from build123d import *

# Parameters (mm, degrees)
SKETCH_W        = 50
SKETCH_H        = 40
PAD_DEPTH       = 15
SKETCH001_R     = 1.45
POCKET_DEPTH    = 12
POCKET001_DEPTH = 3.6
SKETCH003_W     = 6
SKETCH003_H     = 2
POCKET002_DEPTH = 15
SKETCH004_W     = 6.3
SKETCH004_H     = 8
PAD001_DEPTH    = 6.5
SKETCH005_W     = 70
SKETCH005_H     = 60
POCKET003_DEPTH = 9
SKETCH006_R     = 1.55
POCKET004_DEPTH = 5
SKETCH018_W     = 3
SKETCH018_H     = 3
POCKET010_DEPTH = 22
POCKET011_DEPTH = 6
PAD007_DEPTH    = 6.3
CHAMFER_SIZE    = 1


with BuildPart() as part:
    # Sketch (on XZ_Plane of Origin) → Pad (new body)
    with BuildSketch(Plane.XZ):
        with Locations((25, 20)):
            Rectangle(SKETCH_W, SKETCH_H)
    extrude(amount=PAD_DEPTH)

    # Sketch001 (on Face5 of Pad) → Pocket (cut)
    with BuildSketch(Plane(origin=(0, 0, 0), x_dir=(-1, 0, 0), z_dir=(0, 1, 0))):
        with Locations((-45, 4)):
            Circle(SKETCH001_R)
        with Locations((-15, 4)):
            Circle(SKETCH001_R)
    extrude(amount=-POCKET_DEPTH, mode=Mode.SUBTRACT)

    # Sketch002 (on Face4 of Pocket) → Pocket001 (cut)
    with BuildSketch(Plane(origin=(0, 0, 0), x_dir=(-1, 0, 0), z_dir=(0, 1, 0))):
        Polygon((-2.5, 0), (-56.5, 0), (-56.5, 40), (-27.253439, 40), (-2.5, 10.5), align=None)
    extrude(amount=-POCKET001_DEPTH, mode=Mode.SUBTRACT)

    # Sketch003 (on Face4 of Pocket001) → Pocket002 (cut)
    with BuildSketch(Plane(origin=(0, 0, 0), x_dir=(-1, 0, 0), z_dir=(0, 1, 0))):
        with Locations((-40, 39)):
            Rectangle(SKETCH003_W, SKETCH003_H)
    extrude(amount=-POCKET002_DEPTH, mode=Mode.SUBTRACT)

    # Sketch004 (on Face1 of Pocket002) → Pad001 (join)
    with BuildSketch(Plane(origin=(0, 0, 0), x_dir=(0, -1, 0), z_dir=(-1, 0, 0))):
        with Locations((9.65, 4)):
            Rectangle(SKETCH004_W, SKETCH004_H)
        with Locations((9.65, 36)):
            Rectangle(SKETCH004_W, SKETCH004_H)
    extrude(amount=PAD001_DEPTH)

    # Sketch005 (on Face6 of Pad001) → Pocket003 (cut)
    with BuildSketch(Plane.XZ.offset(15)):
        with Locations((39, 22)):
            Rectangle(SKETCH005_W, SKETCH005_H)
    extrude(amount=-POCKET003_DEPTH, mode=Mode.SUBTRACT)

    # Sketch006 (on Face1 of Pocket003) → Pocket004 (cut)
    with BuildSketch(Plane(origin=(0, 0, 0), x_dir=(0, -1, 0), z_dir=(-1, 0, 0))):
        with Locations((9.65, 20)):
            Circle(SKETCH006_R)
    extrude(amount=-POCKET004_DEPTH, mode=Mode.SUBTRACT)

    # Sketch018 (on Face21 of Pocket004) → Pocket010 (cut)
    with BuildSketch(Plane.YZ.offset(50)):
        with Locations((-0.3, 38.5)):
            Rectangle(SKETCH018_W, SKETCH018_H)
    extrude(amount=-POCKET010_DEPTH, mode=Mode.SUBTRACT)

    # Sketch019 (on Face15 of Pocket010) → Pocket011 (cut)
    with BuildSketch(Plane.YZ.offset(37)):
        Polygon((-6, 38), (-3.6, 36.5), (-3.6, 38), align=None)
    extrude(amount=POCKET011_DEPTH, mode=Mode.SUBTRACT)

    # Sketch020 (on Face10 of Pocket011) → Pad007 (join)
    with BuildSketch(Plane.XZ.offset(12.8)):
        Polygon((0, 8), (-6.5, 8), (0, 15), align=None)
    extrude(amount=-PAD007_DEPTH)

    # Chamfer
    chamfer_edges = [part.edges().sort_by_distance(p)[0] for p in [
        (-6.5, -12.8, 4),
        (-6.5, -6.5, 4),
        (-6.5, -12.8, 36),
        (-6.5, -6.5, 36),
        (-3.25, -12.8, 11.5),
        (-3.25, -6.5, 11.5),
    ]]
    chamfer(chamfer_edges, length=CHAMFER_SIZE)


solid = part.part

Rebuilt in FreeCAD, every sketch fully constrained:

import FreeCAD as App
import Part
import Sketcher

V = App.Vector
Q = App.Units.Quantity


def edges_at(feature, points):
    """Names of the edges that pass closest to the given points."""
    edges = feature.Shape.Edges
    near = lambda p: min(range(len(edges)), key=lambda i: edges[i].distToShape(Part.Vertex(*p))[0])
    return sorted({f"Edge{near(p) + 1}" for p in points})


def add_polygon(sketch, points):
    """Adds a closed chain of lines whose ends are joined by coincident constraints."""
    first, n = sketch.GeometryCount, len(points)
    for a, b in zip(points, points[1:] + points[:1]):
        sketch.addGeometry(Part.LineSegment(App.Vector(*a, 0), App.Vector(*b, 0)), False)
    for i in range(n):
        sketch.addConstraint(Sketcher.Constraint("Coincident", first + i, 2, first + (i + 1) % n, 1))

doc = App.newDocument("Part")
body = doc.addObject("PartDesign::Body", "Body")

# Sketch on XZ plane
sketch1 = doc.addObject("Sketcher::SketchObject", "Sketch")
body.addObject(sketch1)
sketch1.AttachmentSupport = (doc.XZ_Plane, [""])
sketch1.MapMode = "FlatFace"
add_polygon(sketch1, [(0, 40), (0, 0), (50, 0), (50, 40)])  # lines 0-3
sketch1.addConstraint([
    Sketcher.Constraint("Vertical", 0),
    Sketcher.Constraint("Horizontal", 1),
    Sketcher.Constraint("Vertical", 2),
    Sketcher.Constraint("Horizontal", 3),
    Sketcher.Constraint("Coincident", 0, 2, -1, 1),
    Sketcher.Constraint("DistanceX", 1, 1, 1, 2, 50.0),
    Sketcher.Constraint("DistanceY", 0, 2, 0, 1, 40.0),
])
pad1 = doc.addObject("PartDesign::Pad", "Pad")
body.addObject(pad1)
pad1.Profile = sketch1
pad1.Length = 15

# Sketch on XZ plane
sketch2 = doc.addObject("Sketcher::SketchObject", "Sketch001")
body.addObject(sketch2)
sketch2.AttachmentSupport = (doc.XZ_Plane, [""])
sketch2.MapMode = "FlatFace"
sketch2.addGeometry([
    Part.Circle(V(45, 4, 0), V(0, 0, 1), 1.45),
    Part.Circle(V(15, 4, 0), V(0, 0, 1), 1.45),
], False)
sketch2.addConstraint([
    Sketcher.Constraint("Equal", 0, 1),
    Sketcher.Constraint("Horizontal", 0, 3, 1, 3),
    Sketcher.Constraint("Diameter", 0, 2.9),
    Sketcher.Constraint("DistanceX", -1, 1, 0, 3, 45.0),
    Sketcher.Constraint("DistanceY", -1, 1, 0, 3, 4.0),
    Sketcher.Constraint("DistanceX", -1, 1, 1, 3, 15.0),
])
pocket1 = doc.addObject("PartDesign::Pocket", "Pocket")
body.addObject(pocket1)
pocket1.Profile = sketch2
pocket1.Length = 12
pocket1.Reversed = True

# Sketch on XZ plane
sketch3 = doc.addObject("Sketcher::SketchObject", "Sketch002")
body.addObject(sketch3)
sketch3.AttachmentSupport = (doc.XZ_Plane, [""])
sketch3.MapMode = "FlatFace"
add_polygon(sketch3, [(56.5, 0), (2.5, 0), (2.5, 10.5), (27.253439, 40), (56.5, 40)])  # lines 0-4
sketch3.addConstraint([
    Sketcher.Constraint("Horizontal", 0),
    Sketcher.Constraint("Vertical", 1),
    Sketcher.Constraint("Horizontal", 3),
    Sketcher.Constraint("Vertical", 4),
    Sketcher.Constraint("PointOnObject", 0, 2, -1),
    Sketcher.Constraint("DistanceX", 0, 2, 0, 1, 54.0),
    Sketcher.Constraint("DistanceY", 4, 2, 4, 1, 40.0),
    Sketcher.Constraint("Angle", 2, Q("50 deg")),
    Sketcher.Constraint("DistanceY", 1, 1, 1, 2, 10.5),
    Sketcher.Constraint("DistanceX", -1, 1, 0, 2, 2.5),
])
pocket2 = doc.addObject("PartDesign::Pocket", "Pocket001")
body.addObject(pocket2)
pocket2.Profile = sketch3
pocket2.Length = 3.6
pocket2.Reversed = True

# Sketch on XZ plane
sketch4 = doc.addObject("Sketcher::SketchObject", "Sketch003")
body.addObject(sketch4)
sketch4.AttachmentSupport = (doc.XZ_Plane, [""])
sketch4.MapMode = "FlatFace"
add_polygon(sketch4, [(43, 40), (43, 38), (37, 38), (37, 40)])  # lines 0-3
sketch4.addConstraint([
    Sketcher.Constraint("Vertical", 0),
    Sketcher.Constraint("Horizontal", 1),
    Sketcher.Constraint("Vertical", 2),
    Sketcher.Constraint("Horizontal", 3),
    Sketcher.Constraint("DistanceX", 1, 2, 1, 1, 6.0),
    Sketcher.Constraint("DistanceY", 0, 2, 0, 1, 2.0),
    Sketcher.Constraint("DistanceX", -1, 1, 0, 2, 43.0),
    Sketcher.Constraint("DistanceY", -1, 1, 0, 2, 38.0),
])
pocket3 = doc.addObject("PartDesign::Pocket", "Pocket002")
body.addObject(pocket3)
pocket3.Profile = sketch4
pocket3.Length = 15
pocket3.Reversed = True

# Sketch on YZ plane
sketch5 = doc.addObject("Sketcher::SketchObject", "Sketch004")
body.addObject(sketch5)
sketch5.AttachmentSupport = (doc.YZ_Plane, [""])
sketch5.MapMode = "FlatFace"
add_polygon(sketch5, [(-6.5, 8), (-6.5, 0), (-12.8, 0), (-12.8, 8)])  # lines 0-3
add_polygon(sketch5, [(-6.5, 40), (-6.5, 32), (-12.8, 32), (-12.8, 40)])  # lines 4-7
sketch5.addConstraint([
    Sketcher.Constraint("Vertical", 0),
    Sketcher.Constraint("Horizontal", 1),
    Sketcher.Constraint("Vertical", 2),
    Sketcher.Constraint("Horizontal", 3),
    Sketcher.Constraint("Vertical", 4),
    Sketcher.Constraint("Horizontal", 5),
    Sketcher.Constraint("Vertical", 6),
    Sketcher.Constraint("Horizontal", 7),
    Sketcher.Constraint("PointOnObject", 0, 2, -1),
    Sketcher.Constraint("Vertical", 3, 2, 4, 2),
    Sketcher.Constraint("Vertical", 2, 2, 5, 2),
    Sketcher.Constraint("Equal", 2, 4),
    Sketcher.Constraint("DistanceY", 0, 2, 0, 1, 8.0),
    Sketcher.Constraint("DistanceX", 1, 2, 1, 1, 6.3),
    Sketcher.Constraint("DistanceY", -1, 1, 4, 2, 32.0),
    Sketcher.Constraint("DistanceX", 0, 2, -1, 1, 6.5),
])
pad2 = doc.addObject("PartDesign::Pad", "Pad001")
body.addObject(pad2)
pad2.Profile = sketch5
pad2.Length = 6.5
pad2.Reversed = True

# Sketch on XZ plane
sketch6 = doc.addObject("Sketcher::SketchObject", "Sketch005")
body.addObject(sketch6)
sketch6.AttachmentSupport = (doc.XZ_Plane, [""])
sketch6.MapMode = "FlatFace"
sketch6.AttachmentOffset = App.Placement(V(0, 0, 15), App.Rotation())
add_polygon(sketch6, [(4, 52), (4, -8), (74, -8), (74, 52)])  # lines 0-3
sketch6.addConstraint([
    Sketcher.Constraint("Vertical", 0),
    Sketcher.Constraint("Horizontal", 1),
    Sketcher.Constraint("Vertical", 2),
    Sketcher.Constraint("Horizontal", 3),
    Sketcher.Constraint("DistanceX", 1, 1, 1, 2, 70.0),
    Sketcher.Constraint("DistanceY", 0, 2, 0, 1, 60.0),
    Sketcher.Constraint("DistanceX", -1, 1, 0, 2, 4.0),
    Sketcher.Constraint("DistanceY", 0, 2, -1, 1, 8.0),
])
pocket4 = doc.addObject("PartDesign::Pocket", "Pocket003")
body.addObject(pocket4)
pocket4.Profile = sketch6
pocket4.Length = 9

# Sketch on YZ plane
sketch7 = doc.addObject("Sketcher::SketchObject", "Sketch006")
body.addObject(sketch7)
sketch7.AttachmentSupport = (doc.YZ_Plane, [""])
sketch7.MapMode = "FlatFace"
sketch7.addGeometry(Part.Circle(V(-9.65, 20, 0), V(0, 0, 1), 1.55), False)
sketch7.addConstraint([
    Sketcher.Constraint("Diameter", 0, 3.1),
    Sketcher.Constraint("DistanceY", -1, 1, 0, 3, 20.0),
    Sketcher.Constraint("DistanceX", 0, 3, -1, 1, 9.65),
])
pocket5 = doc.addObject("PartDesign::Pocket", "Pocket004")
body.addObject(pocket5)
pocket5.Profile = sketch7
pocket5.Length = 5
pocket5.Reversed = True

# Sketch on YZ plane
sketch8 = doc.addObject("Sketcher::SketchObject", "Sketch007")
body.addObject(sketch8)
sketch8.AttachmentSupport = (doc.YZ_Plane, [""])
sketch8.MapMode = "FlatFace"
sketch8.AttachmentOffset = App.Placement(V(0, 0, 50), App.Rotation())
add_polygon(sketch8, [(-1.8, 40), (-1.8, 37), (1.2, 37), (1.2, 40)])  # lines 0-3
sketch8.addConstraint([
    Sketcher.Constraint("Vertical", 0),
    Sketcher.Constraint("Horizontal", 1),
    Sketcher.Constraint("Vertical", 2),
    Sketcher.Constraint("Horizontal", 3),
    Sketcher.Constraint("Equal", 3, 0),
    Sketcher.Constraint("DistanceX", 1, 1, 1, 2, 3.0),
    Sketcher.Constraint("DistanceY", -1, 1, 0, 2, 37.0),
    Sketcher.Constraint("DistanceX", 0, 2, -1, 1, 1.8),
])
pocket6 = doc.addObject("PartDesign::Pocket", "Pocket005")
body.addObject(pocket6)
pocket6.Profile = sketch8
pocket6.Length = 22

# Sketch on YZ plane
sketch9 = doc.addObject("Sketcher::SketchObject", "Sketch008")
body.addObject(sketch9)
sketch9.AttachmentSupport = (doc.YZ_Plane, [""])
sketch9.MapMode = "FlatFace"
sketch9.AttachmentOffset = App.Placement(V(0, 0, 37), App.Rotation())
add_polygon(sketch9, [(-6, 38), (-3.6, 36.5), (-3.6, 38)])  # lines 0-2
sketch9.addConstraint([
    Sketcher.Constraint("Vertical", 1),
    Sketcher.Constraint("Horizontal", 2),
    Sketcher.Constraint("DistanceX", 2, 2, 2, 1, 2.4),
    Sketcher.Constraint("DistanceY", 1, 1, 1, 2, 1.5),
    Sketcher.Constraint("DistanceY", -1, 1, 1, 2, 38.0),
    Sketcher.Constraint("DistanceX", 2, 2, -1, 1, 6.0),
])
pocket7 = doc.addObject("PartDesign::Pocket", "Pocket006")
body.addObject(pocket7)
pocket7.Profile = sketch9
pocket7.Length = 6
pocket7.Reversed = True

# Sketch on XZ plane
sketch10 = doc.addObject("Sketcher::SketchObject", "Sketch009")
body.addObject(sketch10)
sketch10.AttachmentSupport = (doc.XZ_Plane, [""])
sketch10.MapMode = "FlatFace"
sketch10.AttachmentOffset = App.Placement(V(0, 0, 12.8), App.Rotation())
add_polygon(sketch10, [(-6.5, 8), (0, 8), (0, 15)])  # lines 0-2
sketch10.addConstraint([
    Sketcher.Constraint("Horizontal", 0),
    Sketcher.Constraint("Vertical", 1),
    Sketcher.Constraint("PointOnObject", 0, 2, -2),
    Sketcher.Constraint("DistanceY", 1, 1, 1, 2, 7.0),
    Sketcher.Constraint("DistanceX", 0, 1, 0, 2, 6.5),
    Sketcher.Constraint("DistanceY", -1, 1, 0, 2, 8.0),
])
pad3 = doc.addObject("PartDesign::Pad", "Pad002")
body.addObject(pad3)
pad3.Profile = sketch10
pad3.Length = 6.3
pad3.Reversed = True
doc.recompute()

chamfer = doc.addObject("PartDesign::Chamfer", "Chamfer")
body.addObject(chamfer)
chamfer.Base = (pad3, edges_at(pad3, [
    (-6.5, -12.8, 4),
    (-6.5, -6.5, 4),
    (-6.5, -12.8, 36),
    (-6.5, -6.5, 36),
    (-3.25, -12.8, 11.5),
    (-3.25, -6.5, 11.5),
]))
chamfer.Size = 1

doc.recompute()
